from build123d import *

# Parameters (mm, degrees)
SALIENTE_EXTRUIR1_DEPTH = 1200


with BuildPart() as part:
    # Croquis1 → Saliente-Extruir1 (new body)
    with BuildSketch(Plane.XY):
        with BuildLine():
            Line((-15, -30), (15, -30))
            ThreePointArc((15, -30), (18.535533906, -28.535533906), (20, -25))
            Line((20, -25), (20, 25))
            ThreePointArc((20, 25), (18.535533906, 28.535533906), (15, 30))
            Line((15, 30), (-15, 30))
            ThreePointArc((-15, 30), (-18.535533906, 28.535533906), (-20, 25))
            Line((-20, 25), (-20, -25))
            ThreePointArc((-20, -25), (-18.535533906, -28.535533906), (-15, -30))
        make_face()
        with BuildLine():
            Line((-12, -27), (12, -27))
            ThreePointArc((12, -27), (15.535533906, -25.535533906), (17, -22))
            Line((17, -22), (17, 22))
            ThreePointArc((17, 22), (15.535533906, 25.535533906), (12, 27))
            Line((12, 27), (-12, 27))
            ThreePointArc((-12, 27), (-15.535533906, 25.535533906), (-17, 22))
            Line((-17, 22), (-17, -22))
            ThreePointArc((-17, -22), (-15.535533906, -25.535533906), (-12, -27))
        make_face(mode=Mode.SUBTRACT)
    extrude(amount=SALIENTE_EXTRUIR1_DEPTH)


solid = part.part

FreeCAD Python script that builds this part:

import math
import FreeCAD as App
import Part
import Sketcher
from FreeCAD import Vector

doc = App.newDocument("Part")
body = doc.addObject("PartDesign::Body", "Body")

sketch1 = body.newObject("Sketcher::SketchObject", "Sketch")
sketch1.AttachmentSupport = (doc.getObject("XY_Plane"), [""])
sketch1.MapMode = "FlatFace"
sketch1.addGeometry([
    Part.LineSegment(Vector(-15, -30, 0), Vector(15, -30, 0)),
    Part.ArcOfCircle(Part.Circle(Vector(15, -25, 0), Vector(0, 0, 1), 5), math.radians(-90), math.radians(0)),
    Part.LineSegment(Vector(20, -25, 0), Vector(20, 25, 0)),
    Part.ArcOfCircle(Part.Circle(Vector(15, 25, 0), Vector(0, 0, 1), 5), math.radians(0), math.radians(90)),
    Part.LineSegment(Vector(15, 30, 0), Vector(-15, 30, 0)),
    Part.ArcOfCircle(Part.Circle(Vector(-15, 25, 0), Vector(0, 0, 1), 5), math.radians(90), math.radians(180)),
    Part.LineSegment(Vector(-20, 25, 0), Vector(-20, -25, 0)),
    Part.ArcOfCircle(Part.Circle(Vector(-15, -25, 0), Vector(0, 0, 1), 5), math.radians(180), math.radians(270)),
    Part.LineSegment(Vector(12, -27, 0), Vector(-12, -27, 0)),
    Part.ArcOfCircle(Part.Circle(Vector(-12, -22, 0), Vector(0, 0, 1), 5), math.radians(180), math.radians(270)),
    Part.LineSegment(Vector(-17, -22, 0), Vector(-17, 22, 0)),
    Part.ArcOfCircle(Part.Circle(Vector(-12, 22, 0), Vector(0, 0, 1), 5), math.radians(90), math.radians(180)),
    Part.LineSegment(Vector(-12, 27, 0), Vector(12, 27, 0)),
    Part.ArcOfCircle(Part.Circle(Vector(12, 22, 0), Vector(0, 0, 1), 5), math.radians(0), math.radians(90)),
    Part.LineSegment(Vector(17, 22, 0), Vector(17, -22, 0)),
    Part.ArcOfCircle(Part.Circle(Vector(12, -22, 0), Vector(0, 0, 1), 5), math.radians(-90), math.radians(0)),
], False)
sketch1.addConstraint([
    Sketcher.Constraint("Tangent", 0, 2, 1, 1),
    Sketcher.Constraint("Tangent", 1, 2, 2, 1),
    Sketcher.Constraint("Tangent", 2, 2, 3, 1),
    Sketcher.Constraint("Tangent", 3, 2, 4, 1),
    Sketcher.Constraint("Tangent", 4, 2, 5, 1),
    Sketcher.Constraint("Tangent", 5, 2, 6, 1),
    Sketcher.Constraint("Tangent", 6, 2, 7, 1),
    Sketcher.Constraint("Tangent", 7, 2, 0, 1),
    Sketcher.Constraint("Tangent", 8, 2, 9, 2),
    Sketcher.Constraint("Tangent", 9, 1, 10, 1),
    Sketcher.Constraint("Tangent", 10, 2, 11, 2),
    Sketcher.Constraint("Tangent", 11, 1, 12, 1),
    Sketcher.Constraint("Tangent", 12, 2, 13, 2),
    Sketcher.Constraint("Tangent", 13, 1, 14, 1),
    Sketcher.Constraint("Tangent", 14, 2, 15, 2),
    Sketcher.Constraint("Tangent", 15, 1, 8, 1),
    Sketcher.Constraint("Horizontal", 0),
    Sketcher.Constraint("Vertical", 2),
    Sketcher.Constraint("Horizontal", 4),
    Sketcher.Constraint("Vertical", 6),
    Sketcher.Constraint("Horizontal", 8),
    Sketcher.Constraint("Vertical", 10),
    Sketcher.Constraint("Horizontal", 12),
    Sketcher.Constraint("Vertical", 14),
    Sketcher.Constraint("Equal", 1, 3),
    Sketcher.Constraint("Equal", 3, 5),
    Sketcher.Constraint("Equal", 5, 7),
    Sketcher.Constraint("Equal", 7, 9),
    Sketcher.Constraint("Equal", 9, 11),
    Sketcher.Constraint("Equal", 11, 13),
    Sketcher.Constraint("Equal", 13, 15),
    Sketcher.Constraint("Symmetric", 1, 3, 5, 3, -1, 1),
    Sketcher.Constraint("Symmetric", 9, 3, 13, 3, -1, 1),
    Sketcher.Constraint("Radius", 1, 5.0),
    Sketcher.Constraint("DistanceX", 0, 1, 0, 2, 30.0),
    Sketcher.Constraint("DistanceX", 8, 2, 8, 1, 24.0),
    Sketcher.Constraint("DistanceY", 2, 1, 2, 2, 50.0),
    Sketcher.Constraint("DistanceY", 10, 1, 10, 2, 44.0),
])
pad1 = body.newObject("PartDesign::Pad", "Pad")
pad1.Profile = sketch1
pad1.Length = 1200

doc.recompute()
